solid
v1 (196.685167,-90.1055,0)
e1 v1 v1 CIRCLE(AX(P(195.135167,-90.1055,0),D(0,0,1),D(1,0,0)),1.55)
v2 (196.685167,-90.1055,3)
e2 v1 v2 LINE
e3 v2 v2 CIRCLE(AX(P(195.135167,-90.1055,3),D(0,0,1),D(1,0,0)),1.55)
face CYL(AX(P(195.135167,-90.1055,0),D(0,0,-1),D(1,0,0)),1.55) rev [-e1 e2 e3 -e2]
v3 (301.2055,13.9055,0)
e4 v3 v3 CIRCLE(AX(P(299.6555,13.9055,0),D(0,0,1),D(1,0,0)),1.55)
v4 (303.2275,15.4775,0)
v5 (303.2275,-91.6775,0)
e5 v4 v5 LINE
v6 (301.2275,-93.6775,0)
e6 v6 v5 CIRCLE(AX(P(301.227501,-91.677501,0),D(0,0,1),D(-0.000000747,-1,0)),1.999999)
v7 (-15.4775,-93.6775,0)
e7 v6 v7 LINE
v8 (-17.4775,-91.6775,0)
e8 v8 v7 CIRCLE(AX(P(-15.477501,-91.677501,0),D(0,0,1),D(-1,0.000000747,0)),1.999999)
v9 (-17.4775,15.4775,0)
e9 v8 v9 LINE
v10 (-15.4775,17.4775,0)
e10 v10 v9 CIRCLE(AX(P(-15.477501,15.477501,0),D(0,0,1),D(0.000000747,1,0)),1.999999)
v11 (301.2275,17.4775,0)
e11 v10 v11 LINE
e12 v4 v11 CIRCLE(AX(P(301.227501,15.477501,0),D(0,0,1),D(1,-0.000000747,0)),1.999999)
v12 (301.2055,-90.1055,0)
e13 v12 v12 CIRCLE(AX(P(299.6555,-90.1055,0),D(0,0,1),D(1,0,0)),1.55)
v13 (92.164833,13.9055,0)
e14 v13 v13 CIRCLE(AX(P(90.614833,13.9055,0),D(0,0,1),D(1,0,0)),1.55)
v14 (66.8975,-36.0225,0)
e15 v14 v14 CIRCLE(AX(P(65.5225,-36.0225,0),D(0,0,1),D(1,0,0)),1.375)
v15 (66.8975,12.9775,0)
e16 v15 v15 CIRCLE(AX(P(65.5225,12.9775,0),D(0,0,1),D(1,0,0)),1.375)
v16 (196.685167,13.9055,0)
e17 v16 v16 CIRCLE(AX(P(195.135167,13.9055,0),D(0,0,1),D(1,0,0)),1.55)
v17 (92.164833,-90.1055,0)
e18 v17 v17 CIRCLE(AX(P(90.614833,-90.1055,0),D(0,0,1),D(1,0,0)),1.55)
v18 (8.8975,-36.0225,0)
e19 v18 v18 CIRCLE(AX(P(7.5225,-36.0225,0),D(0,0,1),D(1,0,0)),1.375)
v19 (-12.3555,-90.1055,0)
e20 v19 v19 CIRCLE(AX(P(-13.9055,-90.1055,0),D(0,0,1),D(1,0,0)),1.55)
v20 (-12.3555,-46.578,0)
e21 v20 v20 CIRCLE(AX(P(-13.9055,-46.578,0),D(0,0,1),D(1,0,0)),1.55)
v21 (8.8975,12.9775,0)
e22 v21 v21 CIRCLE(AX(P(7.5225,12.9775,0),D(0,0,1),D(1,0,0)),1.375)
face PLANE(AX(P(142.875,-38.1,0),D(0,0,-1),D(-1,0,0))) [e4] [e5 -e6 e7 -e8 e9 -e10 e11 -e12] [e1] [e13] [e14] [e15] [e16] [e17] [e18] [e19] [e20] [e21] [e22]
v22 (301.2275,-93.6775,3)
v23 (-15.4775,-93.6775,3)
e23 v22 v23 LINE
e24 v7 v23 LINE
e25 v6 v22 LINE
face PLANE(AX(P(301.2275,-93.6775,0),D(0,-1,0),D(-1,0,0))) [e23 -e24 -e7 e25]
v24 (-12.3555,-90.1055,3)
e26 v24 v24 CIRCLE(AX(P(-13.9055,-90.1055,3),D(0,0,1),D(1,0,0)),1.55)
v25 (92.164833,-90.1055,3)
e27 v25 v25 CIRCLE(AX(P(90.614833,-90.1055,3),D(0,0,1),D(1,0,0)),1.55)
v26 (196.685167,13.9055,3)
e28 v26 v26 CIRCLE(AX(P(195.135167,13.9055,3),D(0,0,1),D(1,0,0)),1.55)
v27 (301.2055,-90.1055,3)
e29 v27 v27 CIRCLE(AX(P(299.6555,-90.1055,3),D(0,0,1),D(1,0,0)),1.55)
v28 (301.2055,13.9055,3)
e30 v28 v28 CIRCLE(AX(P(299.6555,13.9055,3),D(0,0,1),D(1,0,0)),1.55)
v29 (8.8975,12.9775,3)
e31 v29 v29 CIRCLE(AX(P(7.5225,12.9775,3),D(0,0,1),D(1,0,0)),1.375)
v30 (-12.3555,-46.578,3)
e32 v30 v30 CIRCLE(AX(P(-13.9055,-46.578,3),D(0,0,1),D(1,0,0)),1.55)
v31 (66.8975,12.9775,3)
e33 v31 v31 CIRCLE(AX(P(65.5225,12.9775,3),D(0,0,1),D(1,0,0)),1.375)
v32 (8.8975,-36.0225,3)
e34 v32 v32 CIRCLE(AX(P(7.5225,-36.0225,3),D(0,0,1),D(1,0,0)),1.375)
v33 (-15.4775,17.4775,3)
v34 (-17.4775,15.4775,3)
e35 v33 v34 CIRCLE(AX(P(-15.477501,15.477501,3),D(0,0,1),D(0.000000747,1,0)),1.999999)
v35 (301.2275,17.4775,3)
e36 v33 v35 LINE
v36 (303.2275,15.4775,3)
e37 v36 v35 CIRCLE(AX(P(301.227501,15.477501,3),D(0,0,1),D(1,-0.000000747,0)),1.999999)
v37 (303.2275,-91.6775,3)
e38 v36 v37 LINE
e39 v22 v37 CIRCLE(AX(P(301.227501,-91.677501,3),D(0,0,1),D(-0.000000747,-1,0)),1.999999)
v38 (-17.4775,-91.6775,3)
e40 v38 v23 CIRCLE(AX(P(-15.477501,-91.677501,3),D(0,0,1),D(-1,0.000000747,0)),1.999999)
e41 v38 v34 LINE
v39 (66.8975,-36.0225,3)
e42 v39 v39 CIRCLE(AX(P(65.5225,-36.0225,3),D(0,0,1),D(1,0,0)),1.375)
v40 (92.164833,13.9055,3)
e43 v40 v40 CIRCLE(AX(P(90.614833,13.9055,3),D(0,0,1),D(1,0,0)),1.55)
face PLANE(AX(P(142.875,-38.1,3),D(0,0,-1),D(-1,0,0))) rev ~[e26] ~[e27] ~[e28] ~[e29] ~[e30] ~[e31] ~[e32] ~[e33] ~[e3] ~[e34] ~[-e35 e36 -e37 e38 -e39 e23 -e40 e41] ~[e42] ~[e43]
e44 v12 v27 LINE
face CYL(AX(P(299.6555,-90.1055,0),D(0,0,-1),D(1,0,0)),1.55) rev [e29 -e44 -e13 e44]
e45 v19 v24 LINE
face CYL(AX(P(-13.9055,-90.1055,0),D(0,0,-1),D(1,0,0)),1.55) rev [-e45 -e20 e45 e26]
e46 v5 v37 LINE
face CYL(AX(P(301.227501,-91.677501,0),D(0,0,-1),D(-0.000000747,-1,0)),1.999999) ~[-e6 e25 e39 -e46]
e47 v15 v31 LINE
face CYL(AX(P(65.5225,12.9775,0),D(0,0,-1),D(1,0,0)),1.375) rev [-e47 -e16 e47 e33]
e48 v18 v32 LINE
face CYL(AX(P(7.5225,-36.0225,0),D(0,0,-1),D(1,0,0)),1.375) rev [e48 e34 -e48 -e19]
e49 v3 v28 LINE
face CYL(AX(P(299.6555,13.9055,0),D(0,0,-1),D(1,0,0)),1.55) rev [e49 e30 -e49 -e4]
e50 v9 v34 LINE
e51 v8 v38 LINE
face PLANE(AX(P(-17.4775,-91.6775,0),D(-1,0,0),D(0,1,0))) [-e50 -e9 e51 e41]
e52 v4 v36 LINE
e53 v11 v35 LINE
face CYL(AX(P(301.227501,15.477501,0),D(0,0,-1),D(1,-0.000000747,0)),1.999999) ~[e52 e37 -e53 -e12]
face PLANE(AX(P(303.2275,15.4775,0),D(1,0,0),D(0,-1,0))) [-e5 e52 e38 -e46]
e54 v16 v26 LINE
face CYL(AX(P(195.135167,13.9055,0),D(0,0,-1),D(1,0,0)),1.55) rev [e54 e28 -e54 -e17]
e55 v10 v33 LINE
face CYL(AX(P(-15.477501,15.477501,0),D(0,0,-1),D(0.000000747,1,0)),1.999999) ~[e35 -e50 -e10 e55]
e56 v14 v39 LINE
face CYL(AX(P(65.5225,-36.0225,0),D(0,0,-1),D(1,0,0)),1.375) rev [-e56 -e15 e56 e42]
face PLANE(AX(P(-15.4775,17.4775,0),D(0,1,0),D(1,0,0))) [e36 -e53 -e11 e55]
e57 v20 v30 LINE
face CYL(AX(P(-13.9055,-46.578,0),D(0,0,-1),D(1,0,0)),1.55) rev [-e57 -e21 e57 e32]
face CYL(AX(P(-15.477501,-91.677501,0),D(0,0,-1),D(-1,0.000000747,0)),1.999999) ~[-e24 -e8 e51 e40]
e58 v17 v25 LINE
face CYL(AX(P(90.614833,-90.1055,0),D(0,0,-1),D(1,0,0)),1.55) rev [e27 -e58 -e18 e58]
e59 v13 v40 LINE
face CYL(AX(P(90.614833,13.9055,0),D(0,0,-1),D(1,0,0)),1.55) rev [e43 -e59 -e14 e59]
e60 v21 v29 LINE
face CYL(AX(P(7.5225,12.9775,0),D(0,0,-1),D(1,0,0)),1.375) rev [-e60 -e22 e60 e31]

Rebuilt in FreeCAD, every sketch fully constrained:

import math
import FreeCAD as App
import Part
import Sketcher

doc = App.newDocument("Part")
params = doc.addObject("Spreadsheet::Sheet", "Params")
for row, (alias, value) in enumerate([
    ("sketch1_radius", "1.999999 mm"),
    ("sketch1_diameter", "3.1 mm"),
    ("sketch1_diameter2", "2.75 mm"),
    ("pad1_length", "3 mm"),
], start=1):
    params.set(f"A{row}", alias)
    params.set(f"B{row}", "=" + value)
    params.setAlias(f"B{row}", alias)

body = doc.addObject("PartDesign::Body", "Body")

sketch1 = body.newObject("Sketcher::SketchObject", "Sketch")
sketch1.AttachmentSupport = (doc.getObject("XY_Plane"), [""])
sketch1.MapMode = "FlatFace"
sketch1.addGeometry([
    Part.LineSegment(App.Vector(301.2275, 17.4775, 0), App.Vector(-15.4775, 17.4775, 0)),
    Part.ArcOfCircle(Part.Circle(App.Vector(-15.477501, 15.477501, 0), App.Vector(0, 0, 1), 1.999999), math.radians(89.999957), math.radians(180.000043)),
    Part.LineSegment(App.Vector(-17.4775, 15.4775, 0), App.Vector(-17.4775, -91.6775, 0)),
    Part.ArcOfCircle(Part.Circle(App.Vector(-15.477501, -91.677501, 0), App.Vector(0, 0, 1), 1.999999), math.radians(179.999957), math.radians(270.000043)),
    Part.LineSegment(App.Vector(-15.4775, -93.6775, 0), App.Vector(301.2275, -93.6775, 0)),
    Part.ArcOfCircle(Part.Circle(App.Vector(301.227501, -91.677501, 0), App.Vector(0, 0, 1), 1.999999), math.radians(-90.000043), math.radians(0.000043)),
    Part.LineSegment(App.Vector(303.2275, -91.6775, 0), App.Vector(303.2275, 15.4775, 0)),
    Part.ArcOfCircle(Part.Circle(App.Vector(301.227501, 15.477501, 0), App.Vector(0, 0, 1), 1.999999), math.radians(-0.000043), math.radians(90.000043)),
    Part.Circle(App.Vector(299.6555, -90.1055, 0), App.Vector(0, 0, 1), 1.55),
    Part.Circle(App.Vector(195.135167, -90.1055, 0), App.Vector(0, 0, 1), 1.55),
    Part.Circle(App.Vector(90.614833, -90.1055, 0), App.Vector(0, 0, 1), 1.55),
    Part.Circle(App.Vector(-13.9055, -90.1055, 0), App.Vector(0, 0, 1), 1.55),
    Part.Circle(App.Vector(-13.9055, -46.578, 0), App.Vector(0, 0, 1), 1.55),
    Part.Circle(App.Vector(299.6555, 13.9055, 0), App.Vector(0, 0, 1), 1.55),
    Part.Circle(App.Vector(195.135167, 13.9055, 0), App.Vector(0, 0, 1), 1.55),
    Part.Circle(App.Vector(65.5225, -36.0225, 0), App.Vector(0, 0, 1), 1.375),
    Part.Circle(App.Vector(7.5225, -36.0225, 0), App.Vector(0, 0, 1), 1.375),
    Part.Circle(App.Vector(90.614833, 13.9055, 0), App.Vector(0, 0, 1), 1.55),
    Part.Circle(App.Vector(65.5225, 12.9775, 0), App.Vector(0, 0, 1), 1.375),
    Part.Circle(App.Vector(7.5225, 12.9775, 0), App.Vector(0, 0, 1), 1.375),
], False)
sketch1.addConstraint([
    Sketcher.Constraint("Tangent", 0, 2, 1, 1),
    Sketcher.Constraint("Tangent", 1, 2, 2, 1),
    Sketcher.Constraint("Tangent", 2, 2, 3, 1),
    Sketcher.Constraint("Tangent", 3, 2, 4, 1),
    Sketcher.Constraint("Tangent", 4, 2, 5, 1),
    Sketcher.Constraint("Tangent", 5, 2, 6, 1),
    Sketcher.Constraint("Tangent", 6, 2, 7, 1),
    Sketcher.Constraint("Tangent", 7, 2, 0, 1),
    Sketcher.Constraint("Horizontal", 0),
    Sketcher.Constraint("Vertical", 2),
    Sketcher.Constraint("Horizontal", 4),
    Sketcher.Constraint("Vertical", 6),
    Sketcher.Constraint("Equal", 1, 3),
    Sketcher.Constraint("Equal", 3, 5),
    Sketcher.Constraint("Equal", 5, 7),
    Sketcher.Constraint("Equal", 8, 9),
    Sketcher.Constraint("Equal", 9, 10),
    Sketcher.Constraint("Equal", 10, 11),
    Sketcher.Constraint("Equal", 11, 12),
    Sketcher.Constraint("Equal", 12, 13),
    Sketcher.Constraint("Equal", 13, 14),
    Sketcher.Constraint("Equal", 15, 16),
    Sketcher.Constraint("Equal", 14, 17),
    Sketcher.Constraint("Equal", 16, 18),
    Sketcher.Constraint("Equal", 18, 19),
    Sketcher.Constraint("Horizontal", 8, 3, 9, 3),
    Sketcher.Constraint("Horizontal", 9, 3, 10, 3),
    Sketcher.Constraint("Horizontal", 10, 3, 11, 3),
    Sketcher.Constraint("Horizontal", 13, 3, 14, 3),
    Sketcher.Constraint("Horizontal", 15, 3, 16, 3),
    Sketcher.Constraint("Horizontal", 14, 3, 17, 3),
    Sketcher.Constraint("Horizontal", 18, 3, 19, 3),
    Sketcher.Constraint("Vertical", 11, 3, 12, 3),
    Sketcher.Constraint("Vertical", 8, 3, 13, 3),
    Sketcher.Constraint("Vertical", 9, 3, 14, 3),
    Sketcher.Constraint("Vertical", 10, 3, 17, 3),
    Sketcher.Constraint("Vertical", 15, 3, 18, 3),
    Sketcher.Constraint("Vertical", 16, 3, 19, 3),
    Sketcher.Constraint("Radius", 1, 1.999999),
    Sketcher.Constraint("Diameter", 8, 3.1),
    Sketcher.Constraint("Diameter", 15, 2.75),
    Sketcher.Constraint("DistanceX", 1, 3, 15, 3, 81.000001),
    Sketcher.Constraint("DistanceX", 1, 3, 16, 3, 23.000001),
    Sketcher.Constraint("DistanceY", 15, 3, 18, 3, 49.0),
    Sketcher.Constraint("DistanceY", 15, 3, 1, 3, 51.500001),
    Sketcher.Constraint("DistanceX", 0, 2, 0, 1, 316.705),
    Sketcher.Constraint("DistanceY", 2, 2, 2, 1, 107.155),
    Sketcher.Constraint("DistanceY", 12, 3, -1, 1, 46.578),
    Sketcher.Constraint("DistanceX", 8, 3, 5, 3, 1.572001),
    Sketcher.Constraint("DistanceY", 5, 3, 8, 3, 1.572001),
    Sketcher.Constraint("DistanceX", 3, 3, 11, 3, 1.572001),
    Sketcher.Constraint("DistanceY", 13, 3, 7, 3, 1.572001),
    Sketcher.Constraint("DistanceX", 1, 3, -1, 1, 15.477501),
    Sketcher.Constraint("DistanceY", -1, 1, 1, 3, 15.477501),
    Sketcher.Constraint("DistanceX", 3, 3, 9, 3, 210.612668),
    Sketcher.Constraint("DistanceX", 10, 3, 5, 3, 210.612668),
])
sketch1.setExpression("Constraints[38]", "Params.sketch1_radius")
sketch1.setExpression("Constraints[39]", "Params.sketch1_diameter")
sketch1.setExpression("Constraints[40]", "Params.sketch1_diameter2")
pad1 = body.newObject("PartDesign::Pad", "Pad")
pad1.Profile = sketch1
pad1.setExpression("Length", "Params.pad1_length")

doc.recompute()
